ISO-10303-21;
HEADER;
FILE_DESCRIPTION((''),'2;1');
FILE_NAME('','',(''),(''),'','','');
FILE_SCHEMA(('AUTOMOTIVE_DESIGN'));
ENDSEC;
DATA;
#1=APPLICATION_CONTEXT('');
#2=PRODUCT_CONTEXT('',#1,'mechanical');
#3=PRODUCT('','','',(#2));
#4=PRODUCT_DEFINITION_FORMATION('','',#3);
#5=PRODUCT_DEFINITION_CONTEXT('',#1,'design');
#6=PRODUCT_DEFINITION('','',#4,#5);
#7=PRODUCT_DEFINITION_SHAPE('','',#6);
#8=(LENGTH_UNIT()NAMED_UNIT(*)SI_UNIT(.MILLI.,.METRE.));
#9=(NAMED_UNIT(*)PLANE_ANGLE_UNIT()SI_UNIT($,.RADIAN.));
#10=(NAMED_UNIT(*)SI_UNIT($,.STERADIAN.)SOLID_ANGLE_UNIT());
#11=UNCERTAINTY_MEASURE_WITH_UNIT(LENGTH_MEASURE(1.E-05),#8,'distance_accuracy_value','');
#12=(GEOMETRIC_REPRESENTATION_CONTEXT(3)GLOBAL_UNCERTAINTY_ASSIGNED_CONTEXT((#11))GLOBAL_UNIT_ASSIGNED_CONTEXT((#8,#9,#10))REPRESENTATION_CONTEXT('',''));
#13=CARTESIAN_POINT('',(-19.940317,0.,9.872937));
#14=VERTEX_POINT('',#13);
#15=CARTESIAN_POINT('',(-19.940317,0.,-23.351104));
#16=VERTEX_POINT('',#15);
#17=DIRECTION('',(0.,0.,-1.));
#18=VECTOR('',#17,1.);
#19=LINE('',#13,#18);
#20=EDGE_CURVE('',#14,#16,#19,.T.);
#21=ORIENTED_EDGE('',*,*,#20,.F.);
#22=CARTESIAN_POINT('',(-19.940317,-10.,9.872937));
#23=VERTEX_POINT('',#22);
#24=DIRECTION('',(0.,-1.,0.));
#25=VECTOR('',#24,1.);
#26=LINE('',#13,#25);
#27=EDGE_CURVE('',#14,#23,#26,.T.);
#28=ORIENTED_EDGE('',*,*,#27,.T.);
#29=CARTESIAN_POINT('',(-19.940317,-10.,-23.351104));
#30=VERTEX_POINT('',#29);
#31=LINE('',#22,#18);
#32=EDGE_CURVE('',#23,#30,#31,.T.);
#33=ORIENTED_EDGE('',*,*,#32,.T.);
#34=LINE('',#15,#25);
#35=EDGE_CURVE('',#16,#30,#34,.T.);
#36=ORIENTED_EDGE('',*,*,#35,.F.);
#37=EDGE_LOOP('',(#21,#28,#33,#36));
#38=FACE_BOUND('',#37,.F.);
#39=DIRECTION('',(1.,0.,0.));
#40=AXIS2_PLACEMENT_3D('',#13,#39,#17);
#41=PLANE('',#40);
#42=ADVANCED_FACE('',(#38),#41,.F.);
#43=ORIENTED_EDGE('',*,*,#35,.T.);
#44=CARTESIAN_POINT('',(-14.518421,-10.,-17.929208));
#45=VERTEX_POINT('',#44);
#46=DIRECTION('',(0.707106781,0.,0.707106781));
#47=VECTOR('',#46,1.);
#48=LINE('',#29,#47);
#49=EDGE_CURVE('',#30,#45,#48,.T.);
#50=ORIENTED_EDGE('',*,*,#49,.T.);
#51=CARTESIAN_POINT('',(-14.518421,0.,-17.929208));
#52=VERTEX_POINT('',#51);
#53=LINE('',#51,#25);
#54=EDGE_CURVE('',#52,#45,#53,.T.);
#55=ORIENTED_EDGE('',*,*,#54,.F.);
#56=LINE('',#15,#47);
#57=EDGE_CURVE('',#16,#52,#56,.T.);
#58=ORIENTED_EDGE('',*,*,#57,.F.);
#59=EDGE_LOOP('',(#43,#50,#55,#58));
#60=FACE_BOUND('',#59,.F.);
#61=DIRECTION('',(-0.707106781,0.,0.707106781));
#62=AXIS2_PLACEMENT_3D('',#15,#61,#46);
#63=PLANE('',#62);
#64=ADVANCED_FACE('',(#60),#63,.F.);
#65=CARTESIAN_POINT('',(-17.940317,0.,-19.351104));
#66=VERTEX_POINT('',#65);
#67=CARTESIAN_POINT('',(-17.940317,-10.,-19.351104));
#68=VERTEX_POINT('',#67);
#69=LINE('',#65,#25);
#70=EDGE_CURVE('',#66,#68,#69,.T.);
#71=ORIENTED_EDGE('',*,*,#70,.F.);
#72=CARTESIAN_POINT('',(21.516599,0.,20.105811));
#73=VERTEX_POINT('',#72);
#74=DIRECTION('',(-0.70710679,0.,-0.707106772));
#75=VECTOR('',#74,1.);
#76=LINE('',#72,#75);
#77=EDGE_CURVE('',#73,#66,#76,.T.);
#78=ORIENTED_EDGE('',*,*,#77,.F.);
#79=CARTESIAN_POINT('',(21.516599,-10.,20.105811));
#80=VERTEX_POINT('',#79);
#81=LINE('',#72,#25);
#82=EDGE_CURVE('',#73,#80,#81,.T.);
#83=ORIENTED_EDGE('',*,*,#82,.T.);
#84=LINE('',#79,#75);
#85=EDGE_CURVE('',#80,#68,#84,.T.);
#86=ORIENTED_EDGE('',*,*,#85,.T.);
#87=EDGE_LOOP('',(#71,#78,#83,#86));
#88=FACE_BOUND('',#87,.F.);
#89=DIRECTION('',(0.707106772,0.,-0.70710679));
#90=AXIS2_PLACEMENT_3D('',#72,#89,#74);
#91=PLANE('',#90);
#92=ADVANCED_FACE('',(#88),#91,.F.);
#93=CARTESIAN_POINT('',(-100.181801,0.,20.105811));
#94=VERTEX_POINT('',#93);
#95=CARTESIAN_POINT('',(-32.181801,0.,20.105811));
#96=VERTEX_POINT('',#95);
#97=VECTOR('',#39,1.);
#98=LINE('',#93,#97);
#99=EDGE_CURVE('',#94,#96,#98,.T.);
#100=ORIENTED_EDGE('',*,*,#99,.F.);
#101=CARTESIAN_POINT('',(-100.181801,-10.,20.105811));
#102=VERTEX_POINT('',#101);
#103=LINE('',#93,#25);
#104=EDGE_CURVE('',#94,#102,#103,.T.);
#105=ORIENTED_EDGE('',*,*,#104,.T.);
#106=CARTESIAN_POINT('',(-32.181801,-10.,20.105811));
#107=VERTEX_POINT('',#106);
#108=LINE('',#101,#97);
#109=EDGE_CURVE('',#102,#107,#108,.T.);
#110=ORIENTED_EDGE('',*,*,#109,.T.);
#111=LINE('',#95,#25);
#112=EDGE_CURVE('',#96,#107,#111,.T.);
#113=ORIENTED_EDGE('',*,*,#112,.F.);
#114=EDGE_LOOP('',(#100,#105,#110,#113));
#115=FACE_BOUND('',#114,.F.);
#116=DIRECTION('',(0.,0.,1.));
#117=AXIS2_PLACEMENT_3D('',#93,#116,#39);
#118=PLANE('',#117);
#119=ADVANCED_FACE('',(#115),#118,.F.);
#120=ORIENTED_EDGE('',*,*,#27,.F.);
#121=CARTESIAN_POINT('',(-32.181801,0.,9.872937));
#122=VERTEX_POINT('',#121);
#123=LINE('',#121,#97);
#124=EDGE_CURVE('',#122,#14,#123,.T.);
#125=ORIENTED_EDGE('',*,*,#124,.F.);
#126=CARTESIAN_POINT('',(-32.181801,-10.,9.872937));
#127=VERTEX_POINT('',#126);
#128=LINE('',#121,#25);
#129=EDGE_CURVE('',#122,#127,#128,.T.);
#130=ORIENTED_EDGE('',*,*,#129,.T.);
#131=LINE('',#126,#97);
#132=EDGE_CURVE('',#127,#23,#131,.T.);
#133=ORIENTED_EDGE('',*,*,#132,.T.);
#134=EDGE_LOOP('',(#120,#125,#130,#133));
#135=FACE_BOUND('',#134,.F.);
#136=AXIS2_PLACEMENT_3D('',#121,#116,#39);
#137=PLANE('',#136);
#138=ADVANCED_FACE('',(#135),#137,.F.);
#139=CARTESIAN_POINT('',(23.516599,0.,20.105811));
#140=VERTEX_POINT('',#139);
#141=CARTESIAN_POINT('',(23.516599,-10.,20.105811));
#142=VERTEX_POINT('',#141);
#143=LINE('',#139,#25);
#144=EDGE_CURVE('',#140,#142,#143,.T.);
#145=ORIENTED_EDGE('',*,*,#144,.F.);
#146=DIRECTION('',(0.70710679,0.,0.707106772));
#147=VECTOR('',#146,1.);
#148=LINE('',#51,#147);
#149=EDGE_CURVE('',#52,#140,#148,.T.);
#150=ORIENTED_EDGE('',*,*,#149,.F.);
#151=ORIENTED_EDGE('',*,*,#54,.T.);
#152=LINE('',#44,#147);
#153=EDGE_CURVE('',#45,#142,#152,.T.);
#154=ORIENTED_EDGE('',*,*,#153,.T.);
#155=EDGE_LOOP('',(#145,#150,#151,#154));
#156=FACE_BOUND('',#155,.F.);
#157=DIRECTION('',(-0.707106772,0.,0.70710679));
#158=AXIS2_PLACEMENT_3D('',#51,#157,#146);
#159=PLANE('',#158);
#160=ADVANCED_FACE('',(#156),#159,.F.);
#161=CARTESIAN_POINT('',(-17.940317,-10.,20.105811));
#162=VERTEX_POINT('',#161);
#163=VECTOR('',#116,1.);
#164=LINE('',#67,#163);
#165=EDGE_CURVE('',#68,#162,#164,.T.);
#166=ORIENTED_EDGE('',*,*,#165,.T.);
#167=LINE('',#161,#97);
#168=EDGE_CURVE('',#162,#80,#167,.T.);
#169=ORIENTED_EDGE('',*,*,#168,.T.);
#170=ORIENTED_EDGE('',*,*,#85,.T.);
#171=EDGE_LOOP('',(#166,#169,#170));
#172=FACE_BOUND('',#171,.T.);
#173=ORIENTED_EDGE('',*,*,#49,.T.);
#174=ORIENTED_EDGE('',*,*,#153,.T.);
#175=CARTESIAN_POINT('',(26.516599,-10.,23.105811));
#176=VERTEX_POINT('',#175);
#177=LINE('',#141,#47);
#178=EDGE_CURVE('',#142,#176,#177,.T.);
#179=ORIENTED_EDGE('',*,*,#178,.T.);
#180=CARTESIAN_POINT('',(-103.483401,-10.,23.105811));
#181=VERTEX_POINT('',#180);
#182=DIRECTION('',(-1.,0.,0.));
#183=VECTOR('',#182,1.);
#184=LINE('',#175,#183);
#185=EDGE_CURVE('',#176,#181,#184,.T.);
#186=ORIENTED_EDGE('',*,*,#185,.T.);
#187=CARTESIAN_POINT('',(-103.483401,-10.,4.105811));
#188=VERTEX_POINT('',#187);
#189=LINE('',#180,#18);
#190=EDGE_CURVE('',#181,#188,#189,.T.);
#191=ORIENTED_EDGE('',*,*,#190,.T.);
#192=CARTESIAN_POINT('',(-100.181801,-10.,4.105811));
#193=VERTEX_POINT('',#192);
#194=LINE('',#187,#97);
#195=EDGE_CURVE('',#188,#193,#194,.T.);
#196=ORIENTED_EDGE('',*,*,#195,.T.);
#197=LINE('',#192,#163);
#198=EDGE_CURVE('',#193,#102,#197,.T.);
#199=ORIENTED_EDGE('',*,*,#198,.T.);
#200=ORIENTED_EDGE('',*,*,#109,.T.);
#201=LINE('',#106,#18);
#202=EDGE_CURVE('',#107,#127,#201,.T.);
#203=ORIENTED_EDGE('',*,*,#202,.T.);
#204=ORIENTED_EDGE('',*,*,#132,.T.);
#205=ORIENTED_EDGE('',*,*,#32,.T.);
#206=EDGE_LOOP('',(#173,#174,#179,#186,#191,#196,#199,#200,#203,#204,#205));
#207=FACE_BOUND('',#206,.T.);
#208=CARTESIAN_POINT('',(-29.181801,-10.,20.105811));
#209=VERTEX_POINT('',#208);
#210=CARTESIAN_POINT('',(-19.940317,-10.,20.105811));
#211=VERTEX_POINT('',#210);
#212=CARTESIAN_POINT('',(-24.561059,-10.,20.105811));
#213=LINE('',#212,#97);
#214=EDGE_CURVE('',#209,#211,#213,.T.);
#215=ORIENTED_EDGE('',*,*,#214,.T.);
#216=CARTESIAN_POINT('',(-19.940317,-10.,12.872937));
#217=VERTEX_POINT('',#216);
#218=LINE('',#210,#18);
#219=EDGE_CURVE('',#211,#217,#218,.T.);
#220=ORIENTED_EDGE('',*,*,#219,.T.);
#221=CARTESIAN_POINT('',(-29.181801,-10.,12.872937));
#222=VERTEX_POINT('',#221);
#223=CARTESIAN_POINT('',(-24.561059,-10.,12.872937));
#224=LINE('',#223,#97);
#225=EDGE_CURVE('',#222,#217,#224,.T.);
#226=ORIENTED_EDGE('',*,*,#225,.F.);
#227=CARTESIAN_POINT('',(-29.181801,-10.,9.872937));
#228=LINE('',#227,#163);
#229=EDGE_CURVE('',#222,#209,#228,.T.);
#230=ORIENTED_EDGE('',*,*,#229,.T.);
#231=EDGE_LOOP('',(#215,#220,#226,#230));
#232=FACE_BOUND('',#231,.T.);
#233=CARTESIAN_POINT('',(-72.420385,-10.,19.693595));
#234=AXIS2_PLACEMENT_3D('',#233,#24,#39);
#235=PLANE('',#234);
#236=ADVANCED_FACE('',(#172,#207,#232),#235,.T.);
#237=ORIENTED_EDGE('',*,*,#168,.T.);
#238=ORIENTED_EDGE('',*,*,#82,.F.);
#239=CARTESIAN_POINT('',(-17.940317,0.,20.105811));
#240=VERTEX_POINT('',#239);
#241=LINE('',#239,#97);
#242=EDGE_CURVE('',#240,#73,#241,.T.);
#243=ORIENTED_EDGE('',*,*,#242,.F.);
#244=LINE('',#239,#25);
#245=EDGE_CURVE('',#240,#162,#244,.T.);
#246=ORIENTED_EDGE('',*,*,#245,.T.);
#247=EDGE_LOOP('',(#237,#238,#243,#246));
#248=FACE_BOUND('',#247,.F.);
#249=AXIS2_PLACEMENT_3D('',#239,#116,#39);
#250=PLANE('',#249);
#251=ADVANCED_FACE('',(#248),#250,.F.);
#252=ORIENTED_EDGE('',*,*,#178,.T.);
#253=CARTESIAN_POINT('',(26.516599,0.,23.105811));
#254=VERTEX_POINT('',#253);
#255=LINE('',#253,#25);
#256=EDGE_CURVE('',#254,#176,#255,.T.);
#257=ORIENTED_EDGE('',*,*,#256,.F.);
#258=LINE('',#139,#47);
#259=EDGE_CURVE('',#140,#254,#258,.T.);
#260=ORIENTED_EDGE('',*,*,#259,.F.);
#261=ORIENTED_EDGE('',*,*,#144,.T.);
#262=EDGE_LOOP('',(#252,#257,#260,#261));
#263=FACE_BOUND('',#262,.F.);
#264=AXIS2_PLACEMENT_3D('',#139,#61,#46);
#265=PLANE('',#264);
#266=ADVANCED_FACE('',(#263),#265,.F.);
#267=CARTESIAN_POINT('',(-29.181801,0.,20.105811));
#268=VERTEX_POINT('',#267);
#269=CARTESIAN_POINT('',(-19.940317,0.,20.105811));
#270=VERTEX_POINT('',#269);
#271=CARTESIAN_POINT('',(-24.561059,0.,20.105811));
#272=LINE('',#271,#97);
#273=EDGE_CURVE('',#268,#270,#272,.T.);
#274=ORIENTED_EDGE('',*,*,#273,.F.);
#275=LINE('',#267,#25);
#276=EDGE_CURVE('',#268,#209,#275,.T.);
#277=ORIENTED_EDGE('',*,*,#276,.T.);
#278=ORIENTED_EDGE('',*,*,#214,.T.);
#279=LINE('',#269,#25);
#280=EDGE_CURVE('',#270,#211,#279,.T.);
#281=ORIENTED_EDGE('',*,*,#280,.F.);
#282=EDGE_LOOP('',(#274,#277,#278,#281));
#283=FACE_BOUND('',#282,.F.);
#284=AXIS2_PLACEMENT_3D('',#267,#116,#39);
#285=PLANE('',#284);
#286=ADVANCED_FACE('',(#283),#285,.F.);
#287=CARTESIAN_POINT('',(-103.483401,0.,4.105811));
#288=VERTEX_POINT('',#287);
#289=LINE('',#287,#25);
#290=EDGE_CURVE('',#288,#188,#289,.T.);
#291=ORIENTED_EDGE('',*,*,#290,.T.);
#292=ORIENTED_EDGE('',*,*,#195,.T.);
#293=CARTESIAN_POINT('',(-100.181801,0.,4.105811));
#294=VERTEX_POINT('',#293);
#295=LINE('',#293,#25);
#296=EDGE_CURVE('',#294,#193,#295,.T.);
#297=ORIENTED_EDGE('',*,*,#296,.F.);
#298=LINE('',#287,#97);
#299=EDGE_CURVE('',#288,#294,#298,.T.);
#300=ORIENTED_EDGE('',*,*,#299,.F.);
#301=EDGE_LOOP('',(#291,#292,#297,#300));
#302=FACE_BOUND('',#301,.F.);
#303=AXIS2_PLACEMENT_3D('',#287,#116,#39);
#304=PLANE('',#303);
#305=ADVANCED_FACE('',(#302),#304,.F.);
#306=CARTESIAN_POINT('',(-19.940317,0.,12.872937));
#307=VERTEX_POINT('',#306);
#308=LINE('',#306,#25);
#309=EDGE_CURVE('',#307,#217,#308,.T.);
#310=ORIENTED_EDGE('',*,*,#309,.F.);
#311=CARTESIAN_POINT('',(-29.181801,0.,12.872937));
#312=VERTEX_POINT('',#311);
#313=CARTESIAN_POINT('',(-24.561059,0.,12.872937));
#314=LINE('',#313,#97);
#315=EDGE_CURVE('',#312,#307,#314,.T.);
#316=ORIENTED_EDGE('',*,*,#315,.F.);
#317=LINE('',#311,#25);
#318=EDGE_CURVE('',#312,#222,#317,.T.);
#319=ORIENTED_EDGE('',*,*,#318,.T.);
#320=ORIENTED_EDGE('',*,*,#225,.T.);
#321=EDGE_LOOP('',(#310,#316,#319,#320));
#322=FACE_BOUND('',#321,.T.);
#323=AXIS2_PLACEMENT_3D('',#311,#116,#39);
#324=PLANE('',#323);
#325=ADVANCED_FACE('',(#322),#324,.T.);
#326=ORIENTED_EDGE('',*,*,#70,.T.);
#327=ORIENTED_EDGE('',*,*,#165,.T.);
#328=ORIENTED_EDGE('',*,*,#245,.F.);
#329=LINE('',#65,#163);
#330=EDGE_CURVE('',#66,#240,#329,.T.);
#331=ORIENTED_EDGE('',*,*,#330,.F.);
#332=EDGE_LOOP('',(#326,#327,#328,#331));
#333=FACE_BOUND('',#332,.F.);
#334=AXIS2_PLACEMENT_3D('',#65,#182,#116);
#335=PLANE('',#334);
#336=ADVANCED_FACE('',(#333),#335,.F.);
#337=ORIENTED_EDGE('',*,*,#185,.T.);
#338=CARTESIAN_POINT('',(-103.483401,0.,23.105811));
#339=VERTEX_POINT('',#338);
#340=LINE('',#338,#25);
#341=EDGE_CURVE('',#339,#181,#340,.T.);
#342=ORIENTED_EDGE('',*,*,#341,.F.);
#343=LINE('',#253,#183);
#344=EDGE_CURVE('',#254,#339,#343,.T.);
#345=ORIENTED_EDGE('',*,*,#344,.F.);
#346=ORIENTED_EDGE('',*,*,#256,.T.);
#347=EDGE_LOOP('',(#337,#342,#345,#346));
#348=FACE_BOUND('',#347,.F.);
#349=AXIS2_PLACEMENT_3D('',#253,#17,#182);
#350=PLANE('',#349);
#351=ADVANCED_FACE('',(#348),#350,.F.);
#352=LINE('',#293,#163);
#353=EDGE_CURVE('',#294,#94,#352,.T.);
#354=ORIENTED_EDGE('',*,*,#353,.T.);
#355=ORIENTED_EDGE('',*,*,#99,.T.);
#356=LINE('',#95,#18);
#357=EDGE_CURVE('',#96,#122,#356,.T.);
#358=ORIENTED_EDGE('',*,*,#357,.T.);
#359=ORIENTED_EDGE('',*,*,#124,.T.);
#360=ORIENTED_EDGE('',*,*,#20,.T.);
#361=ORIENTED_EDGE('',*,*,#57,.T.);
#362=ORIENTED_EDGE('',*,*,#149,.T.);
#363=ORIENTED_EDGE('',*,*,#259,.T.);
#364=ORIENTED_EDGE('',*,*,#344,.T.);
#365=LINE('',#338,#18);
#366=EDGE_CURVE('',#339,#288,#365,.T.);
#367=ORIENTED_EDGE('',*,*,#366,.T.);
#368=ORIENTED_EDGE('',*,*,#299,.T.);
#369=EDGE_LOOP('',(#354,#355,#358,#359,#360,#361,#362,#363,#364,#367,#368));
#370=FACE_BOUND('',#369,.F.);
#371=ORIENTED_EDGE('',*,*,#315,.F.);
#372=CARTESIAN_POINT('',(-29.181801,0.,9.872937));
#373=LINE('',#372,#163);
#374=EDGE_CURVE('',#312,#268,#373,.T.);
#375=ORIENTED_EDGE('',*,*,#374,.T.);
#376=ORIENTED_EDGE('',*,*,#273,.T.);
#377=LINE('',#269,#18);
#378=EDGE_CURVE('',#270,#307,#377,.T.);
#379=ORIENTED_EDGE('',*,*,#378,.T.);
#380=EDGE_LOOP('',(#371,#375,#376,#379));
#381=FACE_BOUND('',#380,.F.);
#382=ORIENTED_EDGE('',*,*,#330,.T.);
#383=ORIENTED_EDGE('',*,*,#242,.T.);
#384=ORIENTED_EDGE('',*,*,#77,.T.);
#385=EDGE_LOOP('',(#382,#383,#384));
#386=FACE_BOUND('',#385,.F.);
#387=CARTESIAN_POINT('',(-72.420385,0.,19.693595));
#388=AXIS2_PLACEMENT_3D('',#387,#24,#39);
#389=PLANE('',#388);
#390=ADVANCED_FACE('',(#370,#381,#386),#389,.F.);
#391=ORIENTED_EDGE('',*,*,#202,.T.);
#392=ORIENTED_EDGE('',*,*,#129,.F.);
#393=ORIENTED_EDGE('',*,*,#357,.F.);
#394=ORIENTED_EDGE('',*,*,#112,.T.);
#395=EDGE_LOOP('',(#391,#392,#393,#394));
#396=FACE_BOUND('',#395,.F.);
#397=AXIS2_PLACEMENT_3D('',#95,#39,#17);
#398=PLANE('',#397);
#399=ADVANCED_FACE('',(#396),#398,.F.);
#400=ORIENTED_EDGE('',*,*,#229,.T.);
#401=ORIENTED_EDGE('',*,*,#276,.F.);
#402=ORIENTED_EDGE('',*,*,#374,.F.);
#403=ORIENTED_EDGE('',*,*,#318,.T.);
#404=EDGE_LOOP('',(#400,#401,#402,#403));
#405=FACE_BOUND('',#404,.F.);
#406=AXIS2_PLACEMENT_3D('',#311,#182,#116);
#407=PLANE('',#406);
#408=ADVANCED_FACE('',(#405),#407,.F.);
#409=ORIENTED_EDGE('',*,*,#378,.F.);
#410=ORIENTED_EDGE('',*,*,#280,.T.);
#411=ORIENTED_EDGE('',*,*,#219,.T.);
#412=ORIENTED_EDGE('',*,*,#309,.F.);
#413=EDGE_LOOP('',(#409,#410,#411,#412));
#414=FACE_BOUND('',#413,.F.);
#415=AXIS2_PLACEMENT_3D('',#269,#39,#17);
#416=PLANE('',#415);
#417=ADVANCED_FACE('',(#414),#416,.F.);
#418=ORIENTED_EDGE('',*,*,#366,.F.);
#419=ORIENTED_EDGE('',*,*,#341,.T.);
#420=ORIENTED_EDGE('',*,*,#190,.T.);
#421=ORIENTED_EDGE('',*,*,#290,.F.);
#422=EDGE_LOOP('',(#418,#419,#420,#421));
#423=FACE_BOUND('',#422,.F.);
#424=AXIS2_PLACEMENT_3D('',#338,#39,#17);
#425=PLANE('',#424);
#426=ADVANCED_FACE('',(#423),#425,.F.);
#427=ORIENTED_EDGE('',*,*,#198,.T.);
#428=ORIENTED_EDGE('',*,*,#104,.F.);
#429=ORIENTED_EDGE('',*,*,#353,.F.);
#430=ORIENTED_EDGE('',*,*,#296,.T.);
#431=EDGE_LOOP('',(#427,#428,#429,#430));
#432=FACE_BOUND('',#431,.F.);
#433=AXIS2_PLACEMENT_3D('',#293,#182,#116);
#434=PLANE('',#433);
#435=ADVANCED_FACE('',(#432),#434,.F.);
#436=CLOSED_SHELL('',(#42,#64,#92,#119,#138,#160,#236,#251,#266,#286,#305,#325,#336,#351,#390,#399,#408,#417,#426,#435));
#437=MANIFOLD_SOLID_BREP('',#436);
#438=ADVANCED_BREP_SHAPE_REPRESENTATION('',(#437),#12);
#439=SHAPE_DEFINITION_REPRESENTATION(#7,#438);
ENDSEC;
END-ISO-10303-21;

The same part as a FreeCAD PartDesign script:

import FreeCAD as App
import Part
import Sketcher

V = App.Vector
Q = App.Units.Quantity

doc = App.newDocument("Part")
body = doc.addObject("PartDesign::Body", "Body")

# Sketch on XZ plane
sketch1 = body.newObject("Sketcher::SketchObject", "Sketch")
sketch1.AttachmentSupport = (doc.getObject("XZ_Plane"), [""])
sketch1.MapMode = "FlatFace"
sketch1.addGeometry([
    Part.LineSegment(V(-14.5, -17.9, 0), V(23.5, 20.1, 0)),  # 0
    Part.LineSegment(V(23.5, 20.1, 0), V(26.5, 23.1, 0)),  # 1
    Part.LineSegment(V(26.5, 23.1, 0), V(-103.5, 23.1, 0)),  # 2
    Part.LineSegment(V(-103.5, 23.1, 0), V(-103.5, 4.1, 0)),  # 3
    Part.LineSegment(V(-103.5, 4.1, 0), V(-100.2, 4.1, 0)),  # 4
    Part.LineSegment(V(-100.2, 4.1, 0), V(-100.2, 20.1, 0)),  # 5
    Part.LineSegment(V(-100.2, 20.1, 0), V(-32.2, 20.1, 0)),  # 6
    Part.LineSegment(V(-32.2, 20.1, 0), V(-32.2, 9.9, 0)),  # 7
    Part.LineSegment(V(-32.2, 9.9, 0), V(-19.9, 9.9, 0)),  # 8
    Part.LineSegment(V(-19.9, 9.9, 0), V(-19.9, -23.4, 0)),  # 9
    Part.LineSegment(V(-19.9, -23.4, 0), V(-14.5, -17.9, 0)),  # 10
    Part.LineSegment(V(-29.2, 20.1, 0), V(-19.9, 20.1, 0)),  # 11
    Part.LineSegment(V(-19.9, 20.1, 0), V(-19.9, 12.9, 0)),  # 12
    Part.LineSegment(V(-19.9, 12.9, 0), V(-29.2, 12.9, 0)),  # 13
    Part.LineSegment(V(-29.2, 12.9, 0), V(-29.2, 20.1, 0)),  # 14
    Part.LineSegment(V(-17.9, 20.1, 0), V(21.5, 20.1, 0)),  # 15
    Part.LineSegment(V(21.5, 20.1, 0), V(-17.9, -19.4, 0)),  # 16
    Part.LineSegment(V(-17.9, -19.4, 0), V(-17.9, 20.1, 0)),  # 17
], False)
sketch1.addConstraint([
    Sketcher.Constraint("Coincident", 0, 2, 1, 1),
    Sketcher.Constraint("Coincident", 1, 2, 2, 1),
    Sketcher.Constraint("Coincident", 2, 2, 3, 1),
    Sketcher.Constraint("Coincident", 3, 2, 4, 1),
    Sketcher.Constraint("Coincident", 4, 2, 5, 1),
    Sketcher.Constraint("Coincident", 5, 2, 6, 1),
    Sketcher.Constraint("Coincident", 6, 2, 7, 1),
    Sketcher.Constraint("Coincident", 7, 2, 8, 1),
    Sketcher.Constraint("Coincident", 8, 2, 9, 1),
    Sketcher.Constraint("Coincident", 9, 2, 10, 1),
    Sketcher.Constraint("Coincident", 10, 2, 0, 1),
    Sketcher.Constraint("Coincident", 11, 2, 12, 1),
    Sketcher.Constraint("Coincident", 12, 2, 13, 1),
    Sketcher.Constraint("Coincident", 13, 2, 14, 1),
    Sketcher.Constraint("Coincident", 14, 2, 11, 1),
    Sketcher.Constraint("Coincident", 15, 2, 16, 1),
    Sketcher.Constraint("Coincident", 16, 2, 17, 1),
    Sketcher.Constraint("Coincident", 17, 2, 15, 1),
    Sketcher.Constraint("Horizontal", 2),
    Sketcher.Constraint("Vertical", 3),
    Sketcher.Constraint("Horizontal", 4),
    Sketcher.Constraint("Vertical", 5),
    Sketcher.Constraint("Horizontal", 6),
    Sketcher.Constraint("Vertical", 7),
    Sketcher.Constraint("Horizontal", 8),
    Sketcher.Constraint("Vertical", 9),
    Sketcher.Constraint("Horizontal", 11),
    Sketcher.Constraint("Vertical", 12),
    Sketcher.Constraint("Horizontal", 13),
    Sketcher.Constraint("Vertical", 14),
    Sketcher.Constraint("Horizontal", 15),
    Sketcher.Constraint("Vertical", 17),
    Sketcher.Constraint("Parallel", 0, 1),
    Sketcher.Constraint("Parallel", 1, 10),
    Sketcher.Constraint("Parallel", 10, 16),
    Sketcher.Constraint("Horizontal", 0, 2, 5, 2),
    Sketcher.Constraint("Horizontal", 6, 2, 11, 2),
    Sketcher.Constraint("Horizontal", 14, 2, 15, 2),
    Sketcher.Constraint("Vertical", 9, 2, 11, 2),
    Sketcher.Constraint("Equal", 15, 17),
    Sketcher.Constraint("DistanceX", 2, 2, 2, 1, Q("130 mm")),
    Sketcher.Constraint("DistanceX", 6, 1, 6, 2, Q("68 mm")),
    Sketcher.Constraint("DistanceY", 3, 2, 3, 1, Q("19 mm")),
    Sketcher.Constraint("DistanceY", 5, 1, 5, 2, Q("16 mm")),
    Sketcher.Constraint("DistanceY", 8, 2, 12, 2, Q("3 mm")),
    Sketcher.Constraint("DistanceX", 7, 2, 13, 2, Q("3 mm")),
    Sketcher.Constraint("DistanceX", 15, 2, 0, 2, Q("2 mm")),
    Sketcher.Constraint("DistanceX", 9, 2, 16, 2, Q("2 mm")),
    Sketcher.Constraint("DistanceX", 4, 1, 4, 2, Q("3.3016 mm")),
    Sketcher.Constraint("DistanceY", 9, 2, 9, 1, Q("33.224041 mm")),
    Sketcher.Constraint("DistanceX", -1, 1, 0, 2, Q("23.516599 mm")),
    Sketcher.Constraint("Distance", 0, Q("53.78964 mm")),
    Sketcher.Constraint("Distance", 10, Q("7.667719 mm")),
    Sketcher.Constraint("DistanceY", -1, 1, 0, 2, Q("20.105811 mm")),
])
pad1 = body.newObject("PartDesign::Pad", "Pad")
pad1.Profile = sketch1
pad1.Length = 10

doc.recompute()
